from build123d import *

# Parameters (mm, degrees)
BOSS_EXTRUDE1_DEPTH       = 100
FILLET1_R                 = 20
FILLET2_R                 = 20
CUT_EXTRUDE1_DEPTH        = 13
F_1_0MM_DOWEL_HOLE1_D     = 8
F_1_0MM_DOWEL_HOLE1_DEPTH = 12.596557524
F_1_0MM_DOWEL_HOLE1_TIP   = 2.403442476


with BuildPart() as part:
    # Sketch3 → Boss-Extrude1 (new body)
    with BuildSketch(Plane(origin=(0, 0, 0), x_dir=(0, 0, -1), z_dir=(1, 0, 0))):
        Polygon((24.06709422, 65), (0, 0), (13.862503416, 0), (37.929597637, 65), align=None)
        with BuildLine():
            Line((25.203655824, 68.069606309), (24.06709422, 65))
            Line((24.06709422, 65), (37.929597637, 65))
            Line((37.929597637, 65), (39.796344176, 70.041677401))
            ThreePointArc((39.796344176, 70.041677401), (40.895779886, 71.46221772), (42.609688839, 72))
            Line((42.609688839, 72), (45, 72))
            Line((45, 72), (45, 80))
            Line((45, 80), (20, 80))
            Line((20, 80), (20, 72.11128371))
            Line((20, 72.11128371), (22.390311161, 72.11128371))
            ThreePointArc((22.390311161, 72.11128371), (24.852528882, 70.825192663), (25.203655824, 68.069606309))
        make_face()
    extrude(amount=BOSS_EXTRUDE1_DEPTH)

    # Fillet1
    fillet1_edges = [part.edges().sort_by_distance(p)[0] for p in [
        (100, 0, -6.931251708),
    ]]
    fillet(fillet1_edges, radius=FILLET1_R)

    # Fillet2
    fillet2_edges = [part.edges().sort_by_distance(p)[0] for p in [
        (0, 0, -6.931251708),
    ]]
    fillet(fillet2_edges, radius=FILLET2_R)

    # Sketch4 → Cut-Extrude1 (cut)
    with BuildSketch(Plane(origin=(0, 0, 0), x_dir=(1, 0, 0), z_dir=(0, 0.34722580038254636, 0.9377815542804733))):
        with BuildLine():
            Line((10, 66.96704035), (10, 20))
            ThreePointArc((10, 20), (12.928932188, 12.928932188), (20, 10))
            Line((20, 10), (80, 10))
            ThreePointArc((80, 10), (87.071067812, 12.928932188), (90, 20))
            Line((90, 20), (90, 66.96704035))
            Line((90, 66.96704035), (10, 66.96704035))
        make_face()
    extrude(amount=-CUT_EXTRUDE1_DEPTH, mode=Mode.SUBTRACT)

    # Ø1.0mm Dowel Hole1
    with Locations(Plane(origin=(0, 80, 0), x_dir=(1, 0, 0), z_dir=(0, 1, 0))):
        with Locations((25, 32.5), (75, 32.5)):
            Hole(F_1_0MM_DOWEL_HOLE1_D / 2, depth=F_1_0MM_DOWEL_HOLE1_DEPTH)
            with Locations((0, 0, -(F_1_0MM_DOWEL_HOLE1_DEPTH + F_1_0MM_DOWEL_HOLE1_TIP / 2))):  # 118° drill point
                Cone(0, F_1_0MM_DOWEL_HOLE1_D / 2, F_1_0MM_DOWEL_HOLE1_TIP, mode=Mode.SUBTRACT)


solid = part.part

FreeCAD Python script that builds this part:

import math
import FreeCAD as App
import Part
import Sketcher

V = App.Vector
Q = App.Units.Quantity


def edges_at(feature, points):
    """Names of the edges that pass closest to the given points."""
    edges = feature.Shape.Edges
    near = lambda p: min(range(len(edges)), key=lambda i: edges[i].distToShape(Part.Vertex(*p))[0])
    return sorted({f"Edge{near(p) + 1}" for p in points})

doc = App.newDocument("Part")
body = doc.addObject("PartDesign::Body", "Body")

# Sketch on YZ plane
sketch1 = body.newObject("Sketcher::SketchObject", "Sketch")
sketch1.AttachmentSupport = (doc.getObject("YZ_Plane"), [""])
sketch1.MapMode = "FlatFace"
sketch1.addGeometry(Part.LineSegment(V(65, -24.067094, 0), V(0, 0, 0)), False)
sketch1.addGeometry(Part.LineSegment(V(0, 0, 0), V(0, -13.862503, 0)), False)
sketch1.addGeometry(Part.LineSegment(V(0, -13.862503, 0), V(65, -37.929598, 0)), False)
sketch1.addGeometry(Part.LineSegment(V(65, -37.929598, 0), V(70.041677, -39.796344, 0)), False)
sketch1.addGeometry(Part.ArcOfCircle(Part.Circle(V(69, -42.609689, 0), V(0, 0, 1), 3), math.radians(0), math.radians(69.682274)), False)
sketch1.addGeometry(Part.LineSegment(V(72, -42.609689, 0), V(72, -45, 0)), False)
sketch1.addGeometry(Part.LineSegment(V(72, -45, 0), V(80, -45, 0)), False)
sketch1.addGeometry(Part.LineSegment(V(80, -45, 0), V(80, -20, 0)), False)
sketch1.addGeometry(Part.LineSegment(V(80, -20, 0), V(72.111284, -20, 0)), False)
sketch1.addGeometry(Part.LineSegment(V(72.111284, -20, 0), V(72.111284, -22.390311, 0)), False)
sketch1.addGeometry(Part.ArcOfCircle(Part.Circle(V(69.111284, -22.390311, 0), V(0, 0, 1), 3), math.radians(-110.317726), math.radians(0)), False)
sketch1.addGeometry(Part.LineSegment(V(68.069606, -25.203656, 0), V(65, -24.067094, 0)), False)
sketch1.addConstraint(Sketcher.Constraint("Coincident", 0, 2, 1, 1))
sketch1.addConstraint(Sketcher.Constraint("Coincident", 1, 2, 2, 1))
sketch1.addConstraint(Sketcher.Constraint("Coincident", 2, 2, 3, 1))
sketch1.addConstraint(Sketcher.Constraint("Tangent", 3, 2, 4, 2))
sketch1.addConstraint(Sketcher.Constraint("Tangent", 4, 1, 5, 1))
sketch1.addConstraint(Sketcher.Constraint("Coincident", 5, 2, 6, 1))
sketch1.addConstraint(Sketcher.Constraint("Coincident", 6, 2, 7, 1))
sketch1.addConstraint(Sketcher.Constraint("Coincident", 7, 2, 8, 1))
sketch1.addConstraint(Sketcher.Constraint("Coincident", 8, 2, 9, 1))
sketch1.addConstraint(Sketcher.Constraint("Tangent", 9, 2, 10, 2))
sketch1.addConstraint(Sketcher.Constraint("Tangent", 10, 1, 11, 1))
sketch1.addConstraint(Sketcher.Constraint("Coincident", 11, 2, 0, 1))
sketch1.addConstraint(Sketcher.Constraint("Vertical", 1))
sketch1.addConstraint(Sketcher.Constraint("Vertical", 5))
sketch1.addConstraint(Sketcher.Constraint("Horizontal", 6))
sketch1.addConstraint(Sketcher.Constraint("Vertical", 7))
sketch1.addConstraint(Sketcher.Constraint("Horizontal", 8))
sketch1.addConstraint(Sketcher.Constraint("Vertical", 9))
sketch1.addConstraint(Sketcher.Constraint("Coincident", 0, 2, -1, 1))
sketch1.addConstraint(Sketcher.Constraint("Equal", 4, 10))
sketch1.addConstraint(Sketcher.Constraint("Parallel", 0, 2))
sketch1.addConstraint(Sketcher.Constraint("Parallel", 2, 3))
sketch1.addConstraint(Sketcher.Constraint("Parallel", 3, 11))
sketch1.addConstraint(Sketcher.Constraint("Vertical", 2, 2, 11, 2))
sketch1.addConstraint(Sketcher.Constraint("Equal", 5, 9))
sketch1.addConstraint(Sketcher.Constraint("Radius", 4, Q("3 mm")))
sketch1.addConstraint(Sketcher.Constraint("DistanceX", 6, 1, 6, 2, Q("8 mm")))
sketch1.addConstraint(Sketcher.Constraint("DistanceY", 7, 1, 7, 2, Q("25 mm")))
sketch1.addConstraint(Sketcher.Constraint("DistanceX", -1, 1, 4, 3, Q("69 mm")))
sketch1.addConstraint(Sketcher.Constraint("DistanceX", -1, 1, 2, 2, Q("65 mm")))
sketch1.addConstraint(Sketcher.Constraint("DistanceY", 5, 2, -1, 1, Q("45 mm")))
sketch1.addConstraint(Sketcher.Constraint("DistanceY", 5, 2, 5, 1, Q("2.390311 mm")))
sketch1.addConstraint(Sketcher.Constraint("DistanceX", 8, 2, 8, 1, Q("7.888716 mm")))
pad1 = body.newObject("PartDesign::Pad", "Pad")
pad1.Profile = sketch1
pad1.Length = 100
doc.recompute()

fillet = body.newObject("PartDesign::Fillet", "Fillet")
fillet.Base = (pad1, edges_at(pad1, [(100, 0, -6.931)]))
fillet.Radius = 20
doc.recompute()

fillet2 = body.newObject("PartDesign::Fillet", "Fillet001")
fillet2.Base = (fillet, edges_at(fillet, [(0, 0, -6.931)]))
fillet2.Radius = 20

# Sketch on an angled plane
sketch2 = body.newObject("Sketcher::SketchObject", "Sketch001")
sketch2.Placement = App.Placement(V(0, 0, 0), App.Rotation(V(1, 0, 0), V(0, 0.937781554, -0.3472258), V(0, 0.3472258, 0.937781554), "ZXY"))
sketch2.addGeometry(Part.LineSegment(V(10, 66.96704, 0), V(10, 20, 0)), False)
sketch2.addGeometry(Part.ArcOfCircle(Part.Circle(V(20, 20, 0), V(0, 0, 1), 10), math.radians(180), math.radians(270)), False)
sketch2.addGeometry(Part.LineSegment(V(20, 10, 0), V(80, 10, 0)), False)
sketch2.addGeometry(Part.ArcOfCircle(Part.Circle(V(80, 20, 0), V(0, 0, 1), 10), math.radians(-90), math.radians(0)), False)
sketch2.addGeometry(Part.LineSegment(V(90, 20, 0), V(90, 66.96704, 0)), False)
sketch2.addGeometry(Part.LineSegment(V(90, 66.96704, 0), V(10, 66.96704, 0)), False)
sketch2.addConstraint(Sketcher.Constraint("Tangent", 0, 2, 1, 1))
sketch2.addConstraint(Sketcher.Constraint("Tangent", 1, 2, 2, 1))
sketch2.addConstraint(Sketcher.Constraint("Tangent", 2, 2, 3, 1))
sketch2.addConstraint(Sketcher.Constraint("Tangent", 3, 2, 4, 1))
sketch2.addConstraint(Sketcher.Constraint("Coincident", 4, 2, 5, 1))
sketch2.addConstraint(Sketcher.Constraint("Coincident", 5, 2, 0, 1))
sketch2.addConstraint(Sketcher.Constraint("Vertical", 0))
sketch2.addConstraint(Sketcher.Constraint("Horizontal", 2))
sketch2.addConstraint(Sketcher.Constraint("Vertical", 4))
sketch2.addConstraint(Sketcher.Constraint("Horizontal", 5))
sketch2.addConstraint(Sketcher.Constraint("Equal", 1, 3))
sketch2.addConstraint(Sketcher.Constraint("Radius", 1, Q("10 mm")))
sketch2.addConstraint(Sketcher.Constraint("DistanceX", 2, 1, 2, 2, Q("60 mm")))
sketch2.addConstraint(Sketcher.Constraint("DistanceX", -1, 1, 1, 3, Q("20 mm")))
sketch2.addConstraint(Sketcher.Constraint("DistanceY", -1, 1, 1, 3, Q("20 mm")))
sketch2.addConstraint(Sketcher.Constraint("DistanceY", 0, 2, 0, 1, Q("46.96704 mm")))
pocket1 = body.newObject("PartDesign::Pocket", "Pocket")
pocket1.Profile = sketch2
pocket1.Length = 13

# Sketch on XZ plane
sketch3 = body.newObject("Sketcher::SketchObject", "Sketch002")
sketch3.AttachmentSupport = (doc.getObject("XZ_Plane"), [""])
sketch3.MapMode = "FlatFace"
sketch3.AttachmentOffset = App.Placement(V(0, 0, -80), App.Rotation())
sketch3.addGeometry(Part.Circle(V(25, -32.5, 0), V(0, 0, 1), 4), False)
sketch3.addGeometry(Part.Circle(V(75, -32.5, 0), V(0, 0, 1), 4), False)
sketch3.addConstraint(Sketcher.Constraint("Equal", 0, 1))
sketch3.addConstraint(Sketcher.Constraint("Horizontal", 0, 3, 1, 3))
sketch3.addConstraint(Sketcher.Constraint("Diameter", 0, Q("8 mm")))
sketch3.addConstraint(Sketcher.Constraint("DistanceX", -1, 1, 0, 3, Q("25 mm")))
sketch3.addConstraint(Sketcher.Constraint("DistanceX", -1, 1, 1, 3, Q("75 mm")))
sketch3.addConstraint(Sketcher.Constraint("DistanceY", 0, 3, -1, 1, Q("32.5 mm")))
doc.recompute()
hole = body.newObject("PartDesign::Hole", "Hole")
hole.Profile = sketch3
hole.ThreadType = "None"
hole.Diameter = 8
hole.DepthType = "Dimension"
hole.Depth = 12.596558
hole.DrillPoint = "Angled"
hole.DrillPointAngle = 118
hole.Reversed = True

doc.recompute()
